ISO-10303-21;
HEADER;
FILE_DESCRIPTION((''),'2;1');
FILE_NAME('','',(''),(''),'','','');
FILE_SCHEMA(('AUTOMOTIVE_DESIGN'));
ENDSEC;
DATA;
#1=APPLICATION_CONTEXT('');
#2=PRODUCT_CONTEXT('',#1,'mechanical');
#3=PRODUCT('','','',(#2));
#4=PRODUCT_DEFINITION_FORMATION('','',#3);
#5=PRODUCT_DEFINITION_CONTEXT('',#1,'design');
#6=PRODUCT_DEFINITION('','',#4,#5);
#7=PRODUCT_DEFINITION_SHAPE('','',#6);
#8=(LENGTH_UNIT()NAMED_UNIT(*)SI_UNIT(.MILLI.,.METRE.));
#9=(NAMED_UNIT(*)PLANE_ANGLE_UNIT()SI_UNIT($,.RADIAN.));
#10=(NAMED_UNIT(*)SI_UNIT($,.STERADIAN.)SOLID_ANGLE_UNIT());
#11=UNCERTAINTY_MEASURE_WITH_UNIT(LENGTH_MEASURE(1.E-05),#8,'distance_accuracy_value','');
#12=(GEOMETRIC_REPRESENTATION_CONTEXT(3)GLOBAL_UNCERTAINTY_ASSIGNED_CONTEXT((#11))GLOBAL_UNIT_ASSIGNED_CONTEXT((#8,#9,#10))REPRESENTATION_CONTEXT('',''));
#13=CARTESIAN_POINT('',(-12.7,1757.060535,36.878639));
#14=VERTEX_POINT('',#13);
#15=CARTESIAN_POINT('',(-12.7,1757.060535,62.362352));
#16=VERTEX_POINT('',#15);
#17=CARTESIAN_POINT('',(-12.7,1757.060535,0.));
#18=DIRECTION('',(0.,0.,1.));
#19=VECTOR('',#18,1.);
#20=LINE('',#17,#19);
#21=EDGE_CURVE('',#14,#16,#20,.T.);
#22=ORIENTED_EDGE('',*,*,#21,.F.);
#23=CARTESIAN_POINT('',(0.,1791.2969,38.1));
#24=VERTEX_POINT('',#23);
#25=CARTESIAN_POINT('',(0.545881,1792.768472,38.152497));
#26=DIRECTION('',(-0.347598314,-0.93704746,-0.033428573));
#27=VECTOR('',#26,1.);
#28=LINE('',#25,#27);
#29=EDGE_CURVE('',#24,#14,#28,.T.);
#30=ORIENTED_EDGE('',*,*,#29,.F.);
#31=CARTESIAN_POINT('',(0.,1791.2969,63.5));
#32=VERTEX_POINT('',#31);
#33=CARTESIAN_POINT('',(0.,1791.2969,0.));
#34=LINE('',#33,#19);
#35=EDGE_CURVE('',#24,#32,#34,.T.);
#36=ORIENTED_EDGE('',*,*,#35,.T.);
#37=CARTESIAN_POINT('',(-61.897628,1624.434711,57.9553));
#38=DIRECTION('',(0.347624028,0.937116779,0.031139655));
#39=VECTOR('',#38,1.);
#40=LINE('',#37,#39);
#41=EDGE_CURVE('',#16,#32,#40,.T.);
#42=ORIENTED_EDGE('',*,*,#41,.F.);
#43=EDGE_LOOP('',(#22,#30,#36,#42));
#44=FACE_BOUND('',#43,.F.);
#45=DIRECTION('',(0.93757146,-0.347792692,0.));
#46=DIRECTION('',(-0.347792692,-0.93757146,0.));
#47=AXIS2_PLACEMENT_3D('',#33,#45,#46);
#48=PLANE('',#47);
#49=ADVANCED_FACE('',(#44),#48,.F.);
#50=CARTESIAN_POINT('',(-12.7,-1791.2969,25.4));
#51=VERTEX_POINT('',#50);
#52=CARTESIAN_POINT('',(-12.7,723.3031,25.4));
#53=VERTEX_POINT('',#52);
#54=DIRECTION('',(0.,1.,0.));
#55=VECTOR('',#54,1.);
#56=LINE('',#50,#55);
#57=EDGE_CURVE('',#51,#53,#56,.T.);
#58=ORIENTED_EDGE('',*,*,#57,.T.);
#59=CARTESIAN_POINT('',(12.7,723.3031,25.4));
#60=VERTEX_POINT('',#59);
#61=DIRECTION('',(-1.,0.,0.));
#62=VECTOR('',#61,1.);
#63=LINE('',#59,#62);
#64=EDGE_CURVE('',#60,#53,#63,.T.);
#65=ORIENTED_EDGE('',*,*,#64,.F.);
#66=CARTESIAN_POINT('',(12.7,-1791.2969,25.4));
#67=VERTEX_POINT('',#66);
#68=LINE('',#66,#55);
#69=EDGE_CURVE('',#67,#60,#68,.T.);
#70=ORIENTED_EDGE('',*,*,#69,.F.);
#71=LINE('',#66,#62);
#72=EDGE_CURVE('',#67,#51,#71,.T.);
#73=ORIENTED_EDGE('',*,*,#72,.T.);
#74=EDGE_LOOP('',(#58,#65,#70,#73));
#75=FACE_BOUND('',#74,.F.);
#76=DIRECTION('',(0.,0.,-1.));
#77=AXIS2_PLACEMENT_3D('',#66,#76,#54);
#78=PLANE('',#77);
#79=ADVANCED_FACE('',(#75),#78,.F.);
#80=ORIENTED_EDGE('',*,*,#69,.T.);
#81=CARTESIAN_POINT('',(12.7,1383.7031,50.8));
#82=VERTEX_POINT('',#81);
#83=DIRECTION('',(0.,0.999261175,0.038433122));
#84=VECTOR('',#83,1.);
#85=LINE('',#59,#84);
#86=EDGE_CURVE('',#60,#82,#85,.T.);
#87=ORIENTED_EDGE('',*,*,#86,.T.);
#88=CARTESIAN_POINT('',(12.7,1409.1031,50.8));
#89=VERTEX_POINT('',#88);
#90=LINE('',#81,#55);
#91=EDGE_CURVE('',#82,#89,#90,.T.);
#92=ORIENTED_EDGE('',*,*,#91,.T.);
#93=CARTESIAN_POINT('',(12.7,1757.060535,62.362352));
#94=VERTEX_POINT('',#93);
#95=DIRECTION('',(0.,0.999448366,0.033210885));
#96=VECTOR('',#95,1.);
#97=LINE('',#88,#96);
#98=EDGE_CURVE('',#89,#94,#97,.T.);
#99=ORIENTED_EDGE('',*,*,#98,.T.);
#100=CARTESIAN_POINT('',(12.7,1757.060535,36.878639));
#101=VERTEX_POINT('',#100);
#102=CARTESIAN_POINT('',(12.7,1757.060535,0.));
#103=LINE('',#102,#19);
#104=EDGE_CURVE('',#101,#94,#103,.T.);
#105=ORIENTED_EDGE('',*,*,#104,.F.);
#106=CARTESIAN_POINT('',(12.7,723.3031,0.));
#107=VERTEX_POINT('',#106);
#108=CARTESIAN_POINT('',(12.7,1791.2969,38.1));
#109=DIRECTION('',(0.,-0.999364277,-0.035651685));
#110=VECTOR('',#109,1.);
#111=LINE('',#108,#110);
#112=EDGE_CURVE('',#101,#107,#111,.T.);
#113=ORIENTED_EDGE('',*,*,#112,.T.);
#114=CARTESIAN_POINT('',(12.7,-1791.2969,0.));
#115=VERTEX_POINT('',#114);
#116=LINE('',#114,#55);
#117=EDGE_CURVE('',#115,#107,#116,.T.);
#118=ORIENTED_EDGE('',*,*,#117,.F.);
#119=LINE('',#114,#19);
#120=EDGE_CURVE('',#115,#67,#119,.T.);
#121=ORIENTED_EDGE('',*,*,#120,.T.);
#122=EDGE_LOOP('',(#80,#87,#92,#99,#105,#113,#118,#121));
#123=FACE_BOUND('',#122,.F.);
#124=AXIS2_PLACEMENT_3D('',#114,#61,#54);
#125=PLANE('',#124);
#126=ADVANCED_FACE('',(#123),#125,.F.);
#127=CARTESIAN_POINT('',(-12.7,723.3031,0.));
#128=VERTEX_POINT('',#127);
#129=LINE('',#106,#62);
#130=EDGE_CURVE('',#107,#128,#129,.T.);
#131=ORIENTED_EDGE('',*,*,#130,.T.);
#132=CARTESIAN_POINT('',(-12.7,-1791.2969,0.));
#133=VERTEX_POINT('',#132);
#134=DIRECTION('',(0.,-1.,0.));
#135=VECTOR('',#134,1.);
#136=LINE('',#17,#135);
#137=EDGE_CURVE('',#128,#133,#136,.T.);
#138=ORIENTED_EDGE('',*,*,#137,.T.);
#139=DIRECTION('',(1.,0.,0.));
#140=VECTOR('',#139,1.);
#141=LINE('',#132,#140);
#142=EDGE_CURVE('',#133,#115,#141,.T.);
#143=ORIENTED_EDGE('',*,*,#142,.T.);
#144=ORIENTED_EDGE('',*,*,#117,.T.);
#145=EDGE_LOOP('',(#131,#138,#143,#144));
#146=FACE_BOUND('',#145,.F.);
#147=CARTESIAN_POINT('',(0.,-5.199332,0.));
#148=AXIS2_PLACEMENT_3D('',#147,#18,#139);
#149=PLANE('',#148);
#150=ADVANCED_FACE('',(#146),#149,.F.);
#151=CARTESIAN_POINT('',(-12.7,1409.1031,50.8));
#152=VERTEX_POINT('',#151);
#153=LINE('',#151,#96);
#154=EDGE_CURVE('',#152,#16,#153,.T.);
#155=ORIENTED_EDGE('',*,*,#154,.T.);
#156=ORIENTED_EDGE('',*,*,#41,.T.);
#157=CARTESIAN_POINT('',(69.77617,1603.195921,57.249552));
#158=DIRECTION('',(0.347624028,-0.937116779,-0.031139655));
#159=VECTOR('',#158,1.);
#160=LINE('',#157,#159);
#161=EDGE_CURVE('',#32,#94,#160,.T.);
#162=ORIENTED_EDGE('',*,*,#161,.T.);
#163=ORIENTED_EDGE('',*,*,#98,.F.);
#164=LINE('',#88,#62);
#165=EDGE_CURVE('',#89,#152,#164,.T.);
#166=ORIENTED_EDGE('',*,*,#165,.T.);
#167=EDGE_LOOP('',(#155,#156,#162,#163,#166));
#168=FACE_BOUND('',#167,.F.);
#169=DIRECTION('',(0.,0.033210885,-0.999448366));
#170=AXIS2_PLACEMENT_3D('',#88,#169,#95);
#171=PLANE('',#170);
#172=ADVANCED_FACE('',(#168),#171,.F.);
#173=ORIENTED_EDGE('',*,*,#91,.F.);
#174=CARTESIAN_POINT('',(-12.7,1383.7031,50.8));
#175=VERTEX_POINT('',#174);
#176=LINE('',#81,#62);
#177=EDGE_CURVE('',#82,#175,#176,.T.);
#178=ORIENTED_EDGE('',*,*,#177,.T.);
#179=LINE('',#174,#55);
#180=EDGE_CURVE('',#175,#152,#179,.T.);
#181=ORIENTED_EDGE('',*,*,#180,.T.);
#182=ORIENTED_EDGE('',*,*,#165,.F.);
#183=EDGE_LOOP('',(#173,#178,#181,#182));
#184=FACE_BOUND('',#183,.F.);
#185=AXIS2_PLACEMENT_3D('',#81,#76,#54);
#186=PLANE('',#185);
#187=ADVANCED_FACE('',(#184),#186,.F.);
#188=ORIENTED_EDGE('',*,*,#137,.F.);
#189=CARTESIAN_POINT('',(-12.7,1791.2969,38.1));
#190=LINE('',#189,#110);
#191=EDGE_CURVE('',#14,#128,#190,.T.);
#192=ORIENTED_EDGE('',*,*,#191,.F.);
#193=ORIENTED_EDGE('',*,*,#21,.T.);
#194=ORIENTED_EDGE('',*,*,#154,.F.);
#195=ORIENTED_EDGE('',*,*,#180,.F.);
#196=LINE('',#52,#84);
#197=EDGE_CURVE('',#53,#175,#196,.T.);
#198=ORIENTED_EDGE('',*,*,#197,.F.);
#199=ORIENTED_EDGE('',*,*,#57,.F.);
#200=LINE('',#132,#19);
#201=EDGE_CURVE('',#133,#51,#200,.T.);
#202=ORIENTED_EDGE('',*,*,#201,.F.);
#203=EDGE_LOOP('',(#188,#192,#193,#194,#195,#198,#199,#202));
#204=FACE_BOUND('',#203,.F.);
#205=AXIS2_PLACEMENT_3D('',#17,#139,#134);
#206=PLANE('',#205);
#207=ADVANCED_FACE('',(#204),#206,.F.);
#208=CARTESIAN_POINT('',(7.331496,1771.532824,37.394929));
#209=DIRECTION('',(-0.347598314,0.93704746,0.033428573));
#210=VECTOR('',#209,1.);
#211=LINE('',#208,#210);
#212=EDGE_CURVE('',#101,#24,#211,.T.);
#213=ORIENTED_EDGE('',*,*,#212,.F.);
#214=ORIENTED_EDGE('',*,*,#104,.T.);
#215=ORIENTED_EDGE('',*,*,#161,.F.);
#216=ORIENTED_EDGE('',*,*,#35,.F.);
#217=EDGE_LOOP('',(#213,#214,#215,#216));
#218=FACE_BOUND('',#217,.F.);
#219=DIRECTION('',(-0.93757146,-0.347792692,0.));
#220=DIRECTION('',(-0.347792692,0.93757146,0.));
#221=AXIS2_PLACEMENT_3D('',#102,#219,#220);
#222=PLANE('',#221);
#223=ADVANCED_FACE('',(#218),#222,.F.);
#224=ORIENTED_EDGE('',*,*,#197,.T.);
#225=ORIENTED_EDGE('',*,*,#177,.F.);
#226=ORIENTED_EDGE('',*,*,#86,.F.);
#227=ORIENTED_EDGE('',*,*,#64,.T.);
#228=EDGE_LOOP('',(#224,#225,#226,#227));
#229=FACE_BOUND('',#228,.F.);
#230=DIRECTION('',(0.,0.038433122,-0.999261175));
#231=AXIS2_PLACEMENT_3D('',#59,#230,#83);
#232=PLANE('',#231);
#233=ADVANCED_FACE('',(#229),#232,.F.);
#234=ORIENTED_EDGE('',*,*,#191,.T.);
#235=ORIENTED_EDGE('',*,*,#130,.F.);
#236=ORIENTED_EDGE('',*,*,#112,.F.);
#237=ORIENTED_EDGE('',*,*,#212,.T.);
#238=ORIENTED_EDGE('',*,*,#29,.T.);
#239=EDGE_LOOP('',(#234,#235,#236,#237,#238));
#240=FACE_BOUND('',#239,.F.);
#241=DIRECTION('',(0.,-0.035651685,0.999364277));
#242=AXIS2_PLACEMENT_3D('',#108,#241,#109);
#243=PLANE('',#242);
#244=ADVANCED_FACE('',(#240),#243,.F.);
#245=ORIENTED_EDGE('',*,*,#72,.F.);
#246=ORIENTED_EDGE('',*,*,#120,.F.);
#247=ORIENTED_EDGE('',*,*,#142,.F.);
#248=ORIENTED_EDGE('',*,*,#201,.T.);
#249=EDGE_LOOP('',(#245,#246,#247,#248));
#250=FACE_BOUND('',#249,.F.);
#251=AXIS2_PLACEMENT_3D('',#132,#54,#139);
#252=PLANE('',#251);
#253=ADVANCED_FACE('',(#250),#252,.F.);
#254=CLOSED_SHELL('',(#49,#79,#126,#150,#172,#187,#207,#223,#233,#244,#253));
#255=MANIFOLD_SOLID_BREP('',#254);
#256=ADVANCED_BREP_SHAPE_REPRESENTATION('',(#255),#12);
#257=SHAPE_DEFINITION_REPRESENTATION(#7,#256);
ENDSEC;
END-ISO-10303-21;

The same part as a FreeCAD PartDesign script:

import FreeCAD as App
import Part
import Sketcher
from FreeCAD import Vector
Q = App.Units.Quantity


def add_polygon(sketch, points):
    """Adds a closed chain of lines whose ends are joined by coincident constraints."""
    first, n = sketch.GeometryCount, len(points)
    for a, b in zip(points, points[1:] + points[:1]):
        sketch.addGeometry(Part.LineSegment(App.Vector(*a, 0), App.Vector(*b, 0)), False)
    for i in range(n):
        sketch.addConstraint(Sketcher.Constraint("Coincident", first + i, 2, first + (i + 1) % n, 1))

doc = App.newDocument("Part")
params = doc.addObject("Spreadsheet::Sheet", "Params")
for row, (alias, value) in enumerate([
    ("sketch1_width", "1 in"),
    ("pad1_length", "2.5 in"),
    ("sketch2_width", "99 in"),
    ("sketch2_width2", "1 in"),
    ("sketch2_height", "1.5 in"),
    ("sketch2_width3", "141.047 in"),
    ("pocket1_length", "1 in"),
], start=1):
    params.set(f"A{row}", alias)
    params.set(f"B{row}", "=" + value)
    params.setAlias(f"B{row}", alias)

body = doc.addObject("PartDesign::Body", "Body")

sketch1 = body.newObject("Sketcher::SketchObject", "Sketch")
sketch1.AttachmentSupport = (doc.getObject("XY_Plane"), [""])
sketch1.MapMode = "FlatFace"
add_polygon(sketch1, [(-13, -1791), (13, -1791), (13, 1757), (0, 1791), (-13, 1757)])
sketch1.addConstraint([
    Sketcher.Constraint("Horizontal", 0),
    Sketcher.Constraint("Vertical", 1),
    Sketcher.Constraint("Vertical", 4),
    Sketcher.Constraint("Symmetric", 1, 2, 3, 2, -2),
    Sketcher.Constraint("PointOnObject", 2, 2, -2),
    Sketcher.Constraint("DistanceX", 0, 1, 0, 2, Q("1 in")),
    Sketcher.Constraint("DistanceY", 0, 2, 2, 2, Q("141.047 in")),
    Sketcher.Constraint("DistanceY", 0, 2, -1, 1, Q("70.5235 in")),
    Sketcher.Constraint("DistanceY", 1, 1, 1, 2, Q("3548.357435 mm")),
])
sketch1.setExpression("Constraints[10]", "Params.sketch1_width")
pad1 = body.newObject("PartDesign::Pad", "Pad")
pad1.Profile = sketch1
pad1.setExpression("Length", "Params.pad1_length")

sketch2 = body.newObject("Sketcher::SketchObject", "Sketch001")
sketch2.AttachmentSupport = (doc.getObject("YZ_Plane"), [""])
sketch2.MapMode = "FlatFace"
sketch2.AttachmentOffset = App.Placement(Vector(0, 0, 0.5 * 25.4), App.Rotation())
add_polygon(sketch2, [(1791, 64), (-1791, 64), (-1791, 25), (723, 25), (1384, 51), (1409, 51)])
add_polygon(sketch2, [(1791, 38), (723, 0), (1791, 0)])
sketch2.addConstraint([
    Sketcher.Constraint("Horizontal", 0),
    Sketcher.Constraint("Vertical", 1),
    Sketcher.Constraint("Horizontal", 2),
    Sketcher.Constraint("Horizontal", 4),
    Sketcher.Constraint("Horizontal", 7),
    Sketcher.Constraint("Vertical", 8),
    Sketcher.Constraint("PointOnObject", 6, 2, -1),
    Sketcher.Constraint("Vertical", 2, 2, 6, 2),
    Sketcher.Constraint("Vertical", 5, 2, 7, 2),
    Sketcher.Constraint("Equal", 1, 8),
    Sketcher.Constraint("DistanceX", 2, 1, 2, 2, Q("99 in")),
    Sketcher.Constraint("DistanceX", 4, 1, 4, 2, Q("1 in")),
    Sketcher.Constraint("DistanceY", 1, 2, 1, 1, Q("1.5 in")),
    Sketcher.Constraint("DistanceY", -1, 1, 1, 2, Q("1 in")),
    Sketcher.Constraint("DistanceY", -1, 1, 3, 2, Q("2 in")),
    Sketcher.Constraint("DistanceX", 2, 2, 3, 2, Q("26 in")),
    Sketcher.Constraint("DistanceX", 0, 2, 0, 1, Q("141.047 in")),
    Sketcher.Constraint("DistanceX", 0, 2, -1, 1, Q("70.5235 in")),
])
sketch2.setExpression("Constraints[19]", "Params.sketch2_width")
sketch2.setExpression("Constraints[20]", "Params.sketch2_width2")
sketch2.setExpression("Constraints[21]", "Params.sketch2_height")
sketch2.setExpression("Constraints[25]", "Params.sketch2_width3")
pocket1 = body.newObject("PartDesign::Pocket", "Pocket")
pocket1.Profile = sketch2
pocket1.setExpression("Length", "Params.pocket1_length")

doc.recompute()
